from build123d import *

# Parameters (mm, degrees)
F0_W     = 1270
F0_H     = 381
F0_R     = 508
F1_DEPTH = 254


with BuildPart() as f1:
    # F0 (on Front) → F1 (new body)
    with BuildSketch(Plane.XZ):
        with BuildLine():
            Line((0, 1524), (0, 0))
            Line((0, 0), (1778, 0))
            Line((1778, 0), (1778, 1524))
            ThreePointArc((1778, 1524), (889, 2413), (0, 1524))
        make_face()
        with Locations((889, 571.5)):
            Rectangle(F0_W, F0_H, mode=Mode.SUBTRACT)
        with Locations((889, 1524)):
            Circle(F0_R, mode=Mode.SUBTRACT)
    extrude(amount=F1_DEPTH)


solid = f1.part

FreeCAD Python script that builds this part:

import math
import FreeCAD as App
import Part
import Sketcher
from FreeCAD import Vector
Q = App.Units.Quantity

doc = App.newDocument("Part")
params = doc.addObject("Spreadsheet::Sheet", "Params")
for row, (alias, value) in enumerate([
    ("sketch1_diameter", "40 in"),
    ("sketch1_radius", "35 in"),
    ("sketch1_width", "50 in"),
    ("sketch1_height", "60 in"),
    ("sketch1_height2", "15 in"),
    ("pad1_length", "10 in"),
], start=1):
    params.set(f"A{row}", alias)
    params.set(f"B{row}", "=" + value)
    params.setAlias(f"B{row}", alias)

body = doc.addObject("PartDesign::Body", "Body")

sketch1 = body.newObject("Sketcher::SketchObject", "Sketch")
sketch1.AttachmentSupport = (doc.getObject("XZ_Plane"), [""])
sketch1.MapMode = "FlatFace"
sketch1.addGeometry([
    Part.LineSegment(Vector(0, 1524, 0), Vector(0, 0, 0)),
    Part.LineSegment(Vector(0, 0, 0), Vector(1778, 0, 0)),
    Part.LineSegment(Vector(1778, 0, 0), Vector(1778, 1524, 0)),
    Part.ArcOfCircle(Part.Circle(Vector(889, 1524, 0), Vector(0, 0, 1), 889), math.radians(0), math.radians(180)),
    Part.LineSegment(Vector(1524, 381, 0), Vector(254, 381, 0)),
    Part.LineSegment(Vector(254, 381, 0), Vector(254, 762, 0)),
    Part.LineSegment(Vector(254, 762, 0), Vector(1524, 762, 0)),
    Part.LineSegment(Vector(1524, 762, 0), Vector(1524, 381, 0)),
    Part.Circle(Vector(889, 1524, 0), Vector(0, 0, 1), 508),
], False)
sketch1.addConstraint([
    Sketcher.Constraint("Coincident", 0, 2, 1, 1),
    Sketcher.Constraint("Coincident", 1, 2, 2, 1),
    Sketcher.Constraint("Coincident", 2, 2, 3, 1),
    Sketcher.Constraint("Coincident", 3, 2, 0, 1),
    Sketcher.Constraint("Coincident", 4, 2, 5, 1),
    Sketcher.Constraint("Coincident", 5, 2, 6, 1),
    Sketcher.Constraint("Coincident", 6, 2, 7, 1),
    Sketcher.Constraint("Coincident", 7, 2, 4, 1),
    Sketcher.Constraint("Vertical", 0),
    Sketcher.Constraint("Horizontal", 1),
    Sketcher.Constraint("Vertical", 2),
    Sketcher.Constraint("Horizontal", 4),
    Sketcher.Constraint("Vertical", 5),
    Sketcher.Constraint("Horizontal", 6),
    Sketcher.Constraint("Vertical", 7),
    Sketcher.Constraint("Coincident", 0, 2, -1, 1),
    Sketcher.Constraint("Coincident", 8, 3, 3, 3),
    Sketcher.Constraint("Horizontal", 8, 3, 2, 2),
    Sketcher.Constraint("Equal", 0, 2),
    Sketcher.Constraint("Diameter", 8, Q("40 in")),
    Sketcher.Constraint("Radius", 3, Q("35 in")),
    Sketcher.Constraint("DistanceX", 4, 2, 4, 1, Q("50 in")),
    Sketcher.Constraint("DistanceY", 0, 2, 0, 1, Q("60 in")),
    Sketcher.Constraint("DistanceY", 5, 1, 5, 2, Q("15 in")),
    Sketcher.Constraint("DistanceX", -1, 1, 4, 2, Q("10 in")),
    Sketcher.Constraint("DistanceY", -1, 1, 4, 2, Q("15 in")),
])
sketch1.setExpression("Constraints[19]", "Params.sketch1_diameter")
sketch1.setExpression("Constraints[20]", "Params.sketch1_radius")
sketch1.setExpression("Constraints[21]", "Params.sketch1_width")
sketch1.setExpression("Constraints[22]", "Params.sketch1_height")
sketch1.setExpression("Constraints[23]", "Params.sketch1_height2")
pad1 = body.newObject("PartDesign::Pad", "Pad")
pad1.Profile = sketch1
pad1.setExpression("Length", "Params.pad1_length")

doc.recompute()
